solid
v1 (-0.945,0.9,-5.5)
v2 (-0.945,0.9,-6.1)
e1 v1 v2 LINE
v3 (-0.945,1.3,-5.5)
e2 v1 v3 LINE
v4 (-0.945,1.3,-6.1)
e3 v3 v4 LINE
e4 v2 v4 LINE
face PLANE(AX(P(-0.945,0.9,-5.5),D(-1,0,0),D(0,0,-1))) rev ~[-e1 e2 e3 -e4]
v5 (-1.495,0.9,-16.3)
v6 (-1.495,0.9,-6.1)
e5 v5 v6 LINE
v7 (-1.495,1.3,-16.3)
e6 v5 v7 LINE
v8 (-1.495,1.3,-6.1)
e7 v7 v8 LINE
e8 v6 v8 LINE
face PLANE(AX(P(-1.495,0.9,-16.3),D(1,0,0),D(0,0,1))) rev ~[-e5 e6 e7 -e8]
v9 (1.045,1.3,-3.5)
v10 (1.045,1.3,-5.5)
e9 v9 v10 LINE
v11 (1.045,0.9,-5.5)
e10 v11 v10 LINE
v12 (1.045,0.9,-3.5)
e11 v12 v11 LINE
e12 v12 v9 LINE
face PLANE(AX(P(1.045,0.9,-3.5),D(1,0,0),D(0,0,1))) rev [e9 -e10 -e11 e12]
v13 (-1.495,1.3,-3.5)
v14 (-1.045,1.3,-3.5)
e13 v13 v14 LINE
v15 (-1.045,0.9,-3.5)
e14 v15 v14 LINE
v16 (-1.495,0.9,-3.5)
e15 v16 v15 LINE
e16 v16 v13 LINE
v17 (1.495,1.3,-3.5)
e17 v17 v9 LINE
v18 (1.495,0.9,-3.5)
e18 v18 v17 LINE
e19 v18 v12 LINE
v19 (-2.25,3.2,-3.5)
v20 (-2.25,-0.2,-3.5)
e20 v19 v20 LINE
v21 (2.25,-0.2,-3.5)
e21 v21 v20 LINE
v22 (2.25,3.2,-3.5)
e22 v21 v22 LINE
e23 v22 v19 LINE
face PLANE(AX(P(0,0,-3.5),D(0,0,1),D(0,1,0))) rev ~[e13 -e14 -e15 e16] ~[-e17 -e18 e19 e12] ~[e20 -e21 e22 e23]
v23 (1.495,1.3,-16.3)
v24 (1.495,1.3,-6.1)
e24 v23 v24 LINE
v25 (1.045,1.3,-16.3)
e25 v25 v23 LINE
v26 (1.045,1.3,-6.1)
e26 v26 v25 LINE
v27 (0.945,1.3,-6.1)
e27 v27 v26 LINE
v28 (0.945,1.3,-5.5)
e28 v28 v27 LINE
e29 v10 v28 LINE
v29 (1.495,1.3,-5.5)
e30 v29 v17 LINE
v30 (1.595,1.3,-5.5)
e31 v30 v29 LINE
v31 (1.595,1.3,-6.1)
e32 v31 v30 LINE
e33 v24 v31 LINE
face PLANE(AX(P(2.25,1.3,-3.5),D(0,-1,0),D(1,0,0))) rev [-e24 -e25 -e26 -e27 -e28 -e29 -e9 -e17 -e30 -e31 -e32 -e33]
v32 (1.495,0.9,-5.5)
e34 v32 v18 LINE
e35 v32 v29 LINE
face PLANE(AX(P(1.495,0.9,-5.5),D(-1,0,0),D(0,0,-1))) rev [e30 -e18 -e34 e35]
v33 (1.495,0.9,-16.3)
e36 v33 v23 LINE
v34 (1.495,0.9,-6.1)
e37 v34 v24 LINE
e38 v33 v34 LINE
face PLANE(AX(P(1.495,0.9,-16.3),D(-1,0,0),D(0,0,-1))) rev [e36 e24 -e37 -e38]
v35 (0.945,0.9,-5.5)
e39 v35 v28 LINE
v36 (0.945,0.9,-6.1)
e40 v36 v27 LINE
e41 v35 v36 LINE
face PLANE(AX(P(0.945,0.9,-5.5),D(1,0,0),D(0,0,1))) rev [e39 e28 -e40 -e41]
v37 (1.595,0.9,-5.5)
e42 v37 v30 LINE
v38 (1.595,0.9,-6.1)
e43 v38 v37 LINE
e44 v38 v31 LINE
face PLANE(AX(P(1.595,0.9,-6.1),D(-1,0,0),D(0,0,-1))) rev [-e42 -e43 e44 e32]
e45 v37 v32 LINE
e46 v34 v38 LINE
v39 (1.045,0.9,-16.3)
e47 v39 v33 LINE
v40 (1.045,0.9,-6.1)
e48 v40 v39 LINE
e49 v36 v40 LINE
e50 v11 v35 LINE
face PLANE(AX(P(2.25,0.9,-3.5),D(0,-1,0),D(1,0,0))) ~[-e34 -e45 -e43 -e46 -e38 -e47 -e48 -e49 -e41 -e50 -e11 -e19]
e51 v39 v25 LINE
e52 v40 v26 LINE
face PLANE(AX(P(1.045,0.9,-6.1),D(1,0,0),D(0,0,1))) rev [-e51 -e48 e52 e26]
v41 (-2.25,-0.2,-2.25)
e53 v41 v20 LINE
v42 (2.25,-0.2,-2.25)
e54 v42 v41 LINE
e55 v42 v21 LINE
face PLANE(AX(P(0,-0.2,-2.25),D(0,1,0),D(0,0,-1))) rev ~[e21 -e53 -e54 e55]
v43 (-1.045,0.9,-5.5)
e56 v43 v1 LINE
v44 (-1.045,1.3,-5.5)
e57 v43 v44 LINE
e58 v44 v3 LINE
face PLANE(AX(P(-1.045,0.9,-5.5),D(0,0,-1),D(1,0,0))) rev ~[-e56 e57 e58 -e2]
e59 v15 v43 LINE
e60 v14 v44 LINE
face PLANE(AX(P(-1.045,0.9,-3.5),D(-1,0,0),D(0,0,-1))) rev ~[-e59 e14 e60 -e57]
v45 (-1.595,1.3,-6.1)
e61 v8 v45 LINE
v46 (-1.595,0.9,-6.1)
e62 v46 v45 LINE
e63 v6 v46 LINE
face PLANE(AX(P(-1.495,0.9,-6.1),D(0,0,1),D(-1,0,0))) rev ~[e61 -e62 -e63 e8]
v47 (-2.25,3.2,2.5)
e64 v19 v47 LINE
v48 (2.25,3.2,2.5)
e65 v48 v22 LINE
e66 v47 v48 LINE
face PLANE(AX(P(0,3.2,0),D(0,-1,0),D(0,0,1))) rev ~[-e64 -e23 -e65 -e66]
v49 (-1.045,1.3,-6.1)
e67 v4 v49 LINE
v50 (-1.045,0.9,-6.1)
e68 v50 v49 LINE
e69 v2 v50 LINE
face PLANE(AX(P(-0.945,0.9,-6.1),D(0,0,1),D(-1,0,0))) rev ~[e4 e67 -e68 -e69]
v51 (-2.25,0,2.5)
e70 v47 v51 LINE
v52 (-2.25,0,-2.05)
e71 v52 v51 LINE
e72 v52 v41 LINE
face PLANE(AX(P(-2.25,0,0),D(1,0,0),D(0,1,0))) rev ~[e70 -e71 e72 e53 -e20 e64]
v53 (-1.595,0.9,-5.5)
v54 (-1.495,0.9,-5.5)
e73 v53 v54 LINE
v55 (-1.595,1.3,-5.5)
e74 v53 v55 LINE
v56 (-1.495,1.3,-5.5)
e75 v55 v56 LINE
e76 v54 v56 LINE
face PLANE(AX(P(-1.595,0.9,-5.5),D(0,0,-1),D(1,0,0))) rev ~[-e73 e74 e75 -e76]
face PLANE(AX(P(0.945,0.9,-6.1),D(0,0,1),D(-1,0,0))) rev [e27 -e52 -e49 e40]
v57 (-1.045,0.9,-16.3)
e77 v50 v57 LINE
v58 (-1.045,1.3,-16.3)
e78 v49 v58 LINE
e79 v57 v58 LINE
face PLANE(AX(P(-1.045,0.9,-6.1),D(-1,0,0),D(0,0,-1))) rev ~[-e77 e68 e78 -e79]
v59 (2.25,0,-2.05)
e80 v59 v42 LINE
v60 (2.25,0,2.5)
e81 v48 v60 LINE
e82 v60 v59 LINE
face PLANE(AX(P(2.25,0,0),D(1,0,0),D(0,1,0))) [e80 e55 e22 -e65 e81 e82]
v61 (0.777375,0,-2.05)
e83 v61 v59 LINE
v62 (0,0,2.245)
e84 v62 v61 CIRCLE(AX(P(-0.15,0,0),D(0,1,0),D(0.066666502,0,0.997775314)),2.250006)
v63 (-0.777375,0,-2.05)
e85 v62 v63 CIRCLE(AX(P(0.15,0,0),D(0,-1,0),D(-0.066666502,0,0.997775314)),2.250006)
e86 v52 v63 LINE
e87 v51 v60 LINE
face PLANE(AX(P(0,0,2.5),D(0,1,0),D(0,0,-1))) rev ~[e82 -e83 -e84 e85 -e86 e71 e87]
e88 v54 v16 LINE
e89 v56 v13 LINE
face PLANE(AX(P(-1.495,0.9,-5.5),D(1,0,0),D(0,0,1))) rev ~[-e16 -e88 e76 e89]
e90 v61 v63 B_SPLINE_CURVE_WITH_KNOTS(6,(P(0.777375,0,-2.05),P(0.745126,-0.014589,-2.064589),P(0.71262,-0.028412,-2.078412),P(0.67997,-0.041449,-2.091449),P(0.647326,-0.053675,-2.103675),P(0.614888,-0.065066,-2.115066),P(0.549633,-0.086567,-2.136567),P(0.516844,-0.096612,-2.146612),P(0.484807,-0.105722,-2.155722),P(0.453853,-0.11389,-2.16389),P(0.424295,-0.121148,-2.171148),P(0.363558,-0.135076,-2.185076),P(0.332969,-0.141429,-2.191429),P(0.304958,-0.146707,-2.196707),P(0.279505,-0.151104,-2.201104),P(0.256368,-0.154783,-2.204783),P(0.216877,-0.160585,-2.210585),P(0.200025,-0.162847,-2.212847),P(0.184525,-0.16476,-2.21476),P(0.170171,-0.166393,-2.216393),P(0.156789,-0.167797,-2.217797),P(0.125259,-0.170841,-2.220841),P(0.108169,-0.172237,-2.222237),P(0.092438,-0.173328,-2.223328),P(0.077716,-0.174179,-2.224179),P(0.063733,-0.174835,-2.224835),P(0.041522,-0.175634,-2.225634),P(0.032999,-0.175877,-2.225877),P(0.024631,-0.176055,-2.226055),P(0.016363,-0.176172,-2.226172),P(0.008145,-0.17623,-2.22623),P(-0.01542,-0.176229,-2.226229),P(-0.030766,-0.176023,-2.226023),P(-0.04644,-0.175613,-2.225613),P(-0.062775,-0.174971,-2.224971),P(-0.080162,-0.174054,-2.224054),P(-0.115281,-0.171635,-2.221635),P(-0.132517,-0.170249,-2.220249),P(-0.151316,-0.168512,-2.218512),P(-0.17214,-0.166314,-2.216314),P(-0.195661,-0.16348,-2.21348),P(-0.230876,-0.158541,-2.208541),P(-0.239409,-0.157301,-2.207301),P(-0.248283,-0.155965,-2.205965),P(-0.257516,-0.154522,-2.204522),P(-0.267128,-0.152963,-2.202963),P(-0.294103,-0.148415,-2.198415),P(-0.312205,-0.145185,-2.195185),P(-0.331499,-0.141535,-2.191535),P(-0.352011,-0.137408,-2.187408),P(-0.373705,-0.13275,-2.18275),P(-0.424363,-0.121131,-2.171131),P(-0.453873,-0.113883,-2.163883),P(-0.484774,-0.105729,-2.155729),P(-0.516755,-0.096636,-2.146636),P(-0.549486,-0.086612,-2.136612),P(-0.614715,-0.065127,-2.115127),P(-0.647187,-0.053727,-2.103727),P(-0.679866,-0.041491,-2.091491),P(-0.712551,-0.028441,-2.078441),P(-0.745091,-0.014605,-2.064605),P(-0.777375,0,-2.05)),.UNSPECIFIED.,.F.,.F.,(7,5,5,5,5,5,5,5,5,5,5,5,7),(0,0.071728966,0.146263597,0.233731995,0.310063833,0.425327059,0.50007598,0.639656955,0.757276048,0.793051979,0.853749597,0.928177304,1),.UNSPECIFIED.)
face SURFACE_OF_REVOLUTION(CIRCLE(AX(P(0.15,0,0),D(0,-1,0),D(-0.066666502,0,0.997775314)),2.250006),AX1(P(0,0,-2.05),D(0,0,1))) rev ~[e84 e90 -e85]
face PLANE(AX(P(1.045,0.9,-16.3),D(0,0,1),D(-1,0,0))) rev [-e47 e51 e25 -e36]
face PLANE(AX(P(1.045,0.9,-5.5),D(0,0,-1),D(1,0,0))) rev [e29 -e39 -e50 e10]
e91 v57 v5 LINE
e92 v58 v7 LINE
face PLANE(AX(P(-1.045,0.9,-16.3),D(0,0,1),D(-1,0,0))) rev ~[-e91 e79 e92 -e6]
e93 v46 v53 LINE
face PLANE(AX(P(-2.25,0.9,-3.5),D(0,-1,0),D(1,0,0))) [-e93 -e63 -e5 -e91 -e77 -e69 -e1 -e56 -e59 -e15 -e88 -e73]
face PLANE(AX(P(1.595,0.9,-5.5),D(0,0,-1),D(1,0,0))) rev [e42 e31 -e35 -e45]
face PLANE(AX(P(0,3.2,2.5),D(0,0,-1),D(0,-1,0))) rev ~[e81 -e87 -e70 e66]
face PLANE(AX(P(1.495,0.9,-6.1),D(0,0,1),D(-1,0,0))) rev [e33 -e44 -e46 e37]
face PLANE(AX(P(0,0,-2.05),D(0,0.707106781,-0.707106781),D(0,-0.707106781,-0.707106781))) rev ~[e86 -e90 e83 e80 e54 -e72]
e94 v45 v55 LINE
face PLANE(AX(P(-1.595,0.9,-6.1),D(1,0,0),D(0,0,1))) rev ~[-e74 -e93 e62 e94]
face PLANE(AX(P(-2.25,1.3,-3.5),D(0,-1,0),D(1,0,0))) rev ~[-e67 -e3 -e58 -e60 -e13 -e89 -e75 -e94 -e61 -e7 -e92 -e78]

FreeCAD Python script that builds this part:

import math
import FreeCAD as App
import Part
import Sketcher
from FreeCAD import Vector
Q = App.Units.Quantity

doc = App.newDocument("Part")
params = doc.addObject("Spreadsheet::Sheet", "Params")
for row, (alias, value) in enumerate([
    ("sketch1_height", "6 mm"),
    ("sketch1_width", "3.2 mm"),
    ("sketch1_width2", "3.4 mm"),
    ("sketch1_height2", "4.55 mm"),
    ("pad1_length", "4.5 mm"),
    ("sketch2_radius", "2.25 mm"),
    ("revolution_angle", "180 deg"),
    ("sketch3_height", "0.6 mm"),
    ("sketch3_width", "0.45 mm"),
    ("sketch3_height2", "2 mm"),
    ("sketch3_height3", "10.2 mm"),
    ("pad2_length", "0.4 mm"),
], start=1):
    params.set(f"A{row}", alias)
    params.set(f"B{row}", "=" + value)
    params.setAlias(f"B{row}", alias)

body = doc.addObject("PartDesign::Body", "Body")

sketch1 = body.newObject("Sketcher::SketchObject", "Sketch")
sketch1.AttachmentSupport = (doc.getObject("YZ_Plane"), [""])
sketch1.MapMode = "FlatFace"
sketch1.addGeometry(Part.LineSegment(Vector(3.2, 2.5, 0), Vector(0, 2.5, 0)), False)
sketch1.addGeometry(Part.LineSegment(Vector(0, 2.5, 0), Vector(0, -2.05, 0)), False)
sketch1.addGeometry(Part.LineSegment(Vector(0, -2.05, 0), Vector(-0.2, -2.25, 0)), False)
sketch1.addGeometry(Part.LineSegment(Vector(-0.2, -2.25, 0), Vector(-0.2, -3.5, 0)), False)
sketch1.addGeometry(Part.LineSegment(Vector(-0.2, -3.5, 0), Vector(3.2, -3.5, 0)), False)
sketch1.addGeometry(Part.LineSegment(Vector(3.2, -3.5, 0), Vector(3.2, 2.5, 0)), False)
sketch1.addConstraint(Sketcher.Constraint("Coincident", 0, 2, 1, 1))
sketch1.addConstraint(Sketcher.Constraint("Coincident", 1, 2, 2, 1))
sketch1.addConstraint(Sketcher.Constraint("Coincident", 2, 2, 3, 1))
sketch1.addConstraint(Sketcher.Constraint("Coincident", 3, 2, 4, 1))
sketch1.addConstraint(Sketcher.Constraint("Coincident", 4, 2, 5, 1))
sketch1.addConstraint(Sketcher.Constraint("Coincident", 5, 2, 0, 1))
sketch1.addConstraint(Sketcher.Constraint("Horizontal", 0))
sketch1.addConstraint(Sketcher.Constraint("Vertical", 1))
sketch1.addConstraint(Sketcher.Constraint("Vertical", 3))
sketch1.addConstraint(Sketcher.Constraint("Horizontal", 4))
sketch1.addConstraint(Sketcher.Constraint("Vertical", 5))
sketch1.addConstraint(Sketcher.Constraint("PointOnObject", 0, 2, -2))
sketch1.addConstraint(Sketcher.Constraint("DistanceY", 5, 1, 5, 2, 6.0))
sketch1.addConstraint(Sketcher.Constraint("DistanceX", 0, 2, 0, 1, 3.2))
sketch1.addConstraint(Sketcher.Constraint("DistanceX", 4, 1, 4, 2, 3.4))
sketch1.addConstraint(Sketcher.Constraint("DistanceY", 1, 2, 1, 1, 4.55))
sketch1.addConstraint(Sketcher.Constraint("DistanceY", -1, 1, 0, 2, 2.5))
sketch1.addConstraint(Sketcher.Constraint("Angle", 2, Q("-135 deg")))
sketch1.setExpression("Constraints[12]", "Params.sketch1_height")
sketch1.setExpression("Constraints[13]", "Params.sketch1_width")
sketch1.setExpression("Constraints[14]", "Params.sketch1_width2")
sketch1.setExpression("Constraints[15]", "Params.sketch1_height2")
pad1 = body.newObject("PartDesign::Pad", "Pad")
pad1.Profile = sketch1
pad1.setExpression("Length", "Params.pad1_length")
pad1.Midplane = True

sketch2 = body.newObject("Sketcher::SketchObject", "Sketch001")
sketch2.AttachmentSupport = (doc.getObject("YZ_Plane"), [""])
sketch2.MapMode = "FlatFace"
sketch2.addGeometry(Part.LineSegment(Vector(0, -2.2, 0), Vector(0, 2.2, 0)), False)
sketch2.addGeometry(Part.ArcOfCircle(Part.Circle(Vector(0.1, 0, 0), Vector(0, 0, 1), 2.3), math.radians(94), math.radians(266)), False)
sketch2.addConstraint(Sketcher.Constraint("Coincident", 0, 1, 1, 2))
sketch2.addConstraint(Sketcher.Constraint("Coincident", 1, 1, 0, 2))
sketch2.addConstraint(Sketcher.Constraint("Vertical", 0))
sketch2.addConstraint(Sketcher.Constraint("Symmetric", 0, 1, 1, 1, -1, 1))
sketch2.addConstraint(Sketcher.Constraint("Radius", 1, 2.25))
sketch2.addConstraint(Sketcher.Constraint("DistanceX", -1, 1, 1, 3, 0.15))
sketch2.setExpression("Constraints[4]", "Params.sketch2_radius")
revolution = body.newObject("PartDesign::Revolution", "Revolution")
revolution.Profile = sketch2
revolution.ReferenceAxis = (sketch2, ["V_Axis"])
revolution.setExpression("Angle", "Params.revolution_angle")
revolution.Midplane = True

sketch3 = body.newObject("Sketcher::SketchObject", "Sketch002")
sketch3.AttachmentSupport = (doc.getObject("XZ_Plane"), [""])
sketch3.MapMode = "FlatFace"
sketch3.AttachmentOffset = App.Placement(Vector(0, 0, -0.9), App.Rotation())
sketch3.addGeometry(Part.LineSegment(Vector(-1.04, -3.5, 0), Vector(-1.5, -3.5, 0)), False)
sketch3.addGeometry(Part.LineSegment(Vector(-1.5, -3.5, 0), Vector(-1.5, -5.5, 0)), False)
sketch3.addGeometry(Part.LineSegment(Vector(-1.5, -5.5, 0), Vector(-1.59, -5.5, 0)), False)
sketch3.addGeometry(Part.LineSegment(Vector(-1.59, -5.5, 0), Vector(-1.59, -6.1, 0)), False)
sketch3.addGeometry(Part.LineSegment(Vector(-1.59, -6.1, 0), Vector(-1.5, -6.1, 0)), False)
sketch3.addGeometry(Part.LineSegment(Vector(-1.5, -6.1, 0), Vector(-1.5, -16.3, 0)), False)
sketch3.addGeometry(Part.LineSegment(Vector(-1.5, -16.3, 0), Vector(-1.04, -16.3, 0)), False)
sketch3.addGeometry(Part.LineSegment(Vector(-1.04, -16.3, 0), Vector(-1.04, -6.1, 0)), False)
sketch3.addGeometry(Part.LineSegment(Vector(-1.04, -6.1, 0), Vector(-0.94, -6.1, 0)), False)
sketch3.addGeometry(Part.LineSegment(Vector(-0.94, -6.1, 0), Vector(-0.94, -5.5, 0)), False)
sketch3.addGeometry(Part.LineSegment(Vector(-0.94, -5.5, 0), Vector(-1.04, -5.5, 0)), False)
sketch3.addGeometry(Part.LineSegment(Vector(-1.04, -5.5, 0), Vector(-1.04, -3.5, 0)), False)
sketch3.addConstraint(Sketcher.Constraint("Coincident", 0, 2, 1, 1))
sketch3.addConstraint(Sketcher.Constraint("Coincident", 1, 2, 2, 1))
sketch3.addConstraint(Sketcher.Constraint("Coincident", 2, 2, 3, 1))
sketch3.addConstraint(Sketcher.Constraint("Coincident", 3, 2, 4, 1))
sketch3.addConstraint(Sketcher.Constraint("Coincident", 4, 2, 5, 1))
sketch3.addConstraint(Sketcher.Constraint("Coincident", 5, 2, 6, 1))
sketch3.addConstraint(Sketcher.Constraint("Coincident", 6, 2, 7, 1))
sketch3.addConstraint(Sketcher.Constraint("Coincident", 7, 2, 8, 1))
sketch3.addConstraint(Sketcher.Constraint("Coincident", 8, 2, 9, 1))
sketch3.addConstraint(Sketcher.Constraint("Coincident", 9, 2, 10, 1))
sketch3.addConstraint(Sketcher.Constraint("Coincident", 10, 2, 11, 1))
sketch3.addConstraint(Sketcher.Constraint("Coincident", 11, 2, 0, 1))
sketch3.addConstraint(Sketcher.Constraint("Horizontal", 0))
sketch3.addConstraint(Sketcher.Constraint("Vertical", 1))
sketch3.addConstraint(Sketcher.Constraint("Horizontal", 2))
sketch3.addConstraint(Sketcher.Constraint("Vertical", 3))
sketch3.addConstraint(Sketcher.Constraint("Horizontal", 4))
sketch3.addConstraint(Sketcher.Constraint("Vertical", 5))
sketch3.addConstraint(Sketcher.Constraint("Horizontal", 6))
sketch3.addConstraint(Sketcher.Constraint("Vertical", 7))
sketch3.addConstraint(Sketcher.Constraint("Horizontal", 8))
sketch3.addConstraint(Sketcher.Constraint("Vertical", 9))
sketch3.addConstraint(Sketcher.Constraint("Horizontal", 10))
sketch3.addConstraint(Sketcher.Constraint("Vertical", 11))
sketch3.addConstraint(Sketcher.Constraint("Horizontal", 4, 2, 7, 2))
sketch3.addConstraint(Sketcher.Constraint("Horizontal", 2, 2, 9, 2))
sketch3.addConstraint(Sketcher.Constraint("Vertical", 1, 2, 4, 2))
sketch3.addConstraint(Sketcher.Constraint("Vertical", 7, 2, 10, 2))
sketch3.addConstraint(Sketcher.Constraint("Equal", 4, 8))
sketch3.addConstraint(Sketcher.Constraint("DistanceY", 3, 2, 3, 1, 0.6))
sketch3.addConstraint(Sketcher.Constraint("DistanceX", 0, 2, 0, 1, 0.45))
sketch3.addConstraint(Sketcher.Constraint("DistanceY", 1, 2, 1, 1, 2.0))
sketch3.addConstraint(Sketcher.Constraint("DistanceX", 3, 2, 8, 2, 0.65))
sketch3.addConstraint(Sketcher.Constraint("DistanceY", 5, 2, 5, 1, 10.2))
sketch3.addConstraint(Sketcher.Constraint("DistanceY", 0, 2, -1, 1, 3.5))
sketch3.addConstraint(Sketcher.Constraint("DistanceX", 0, 2, -1, 1, 1.495))
sketch3.setExpression("Constraints[29]", "Params.sketch3_height")
sketch3.setExpression("Constraints[30]", "Params.sketch3_width")
sketch3.setExpression("Constraints[31]", "Params.sketch3_height2")
sketch3.setExpression("Constraints[33]", "Params.sketch3_height3")
pad2 = body.newObject("PartDesign::Pad", "Pad001")
pad2.Profile = sketch3
pad2.setExpression("Length", "Params.pad2_length")
pad2.Reversed = True
doc.recompute()

mirrored = body.newObject("PartDesign::Mirrored", "Mirrored")
mirrored.Originals = [pad2]
mirrored.MirrorPlane = (doc.getObject("YZ_Plane"), [""])
body.Tip = mirrored

doc.recompute()
